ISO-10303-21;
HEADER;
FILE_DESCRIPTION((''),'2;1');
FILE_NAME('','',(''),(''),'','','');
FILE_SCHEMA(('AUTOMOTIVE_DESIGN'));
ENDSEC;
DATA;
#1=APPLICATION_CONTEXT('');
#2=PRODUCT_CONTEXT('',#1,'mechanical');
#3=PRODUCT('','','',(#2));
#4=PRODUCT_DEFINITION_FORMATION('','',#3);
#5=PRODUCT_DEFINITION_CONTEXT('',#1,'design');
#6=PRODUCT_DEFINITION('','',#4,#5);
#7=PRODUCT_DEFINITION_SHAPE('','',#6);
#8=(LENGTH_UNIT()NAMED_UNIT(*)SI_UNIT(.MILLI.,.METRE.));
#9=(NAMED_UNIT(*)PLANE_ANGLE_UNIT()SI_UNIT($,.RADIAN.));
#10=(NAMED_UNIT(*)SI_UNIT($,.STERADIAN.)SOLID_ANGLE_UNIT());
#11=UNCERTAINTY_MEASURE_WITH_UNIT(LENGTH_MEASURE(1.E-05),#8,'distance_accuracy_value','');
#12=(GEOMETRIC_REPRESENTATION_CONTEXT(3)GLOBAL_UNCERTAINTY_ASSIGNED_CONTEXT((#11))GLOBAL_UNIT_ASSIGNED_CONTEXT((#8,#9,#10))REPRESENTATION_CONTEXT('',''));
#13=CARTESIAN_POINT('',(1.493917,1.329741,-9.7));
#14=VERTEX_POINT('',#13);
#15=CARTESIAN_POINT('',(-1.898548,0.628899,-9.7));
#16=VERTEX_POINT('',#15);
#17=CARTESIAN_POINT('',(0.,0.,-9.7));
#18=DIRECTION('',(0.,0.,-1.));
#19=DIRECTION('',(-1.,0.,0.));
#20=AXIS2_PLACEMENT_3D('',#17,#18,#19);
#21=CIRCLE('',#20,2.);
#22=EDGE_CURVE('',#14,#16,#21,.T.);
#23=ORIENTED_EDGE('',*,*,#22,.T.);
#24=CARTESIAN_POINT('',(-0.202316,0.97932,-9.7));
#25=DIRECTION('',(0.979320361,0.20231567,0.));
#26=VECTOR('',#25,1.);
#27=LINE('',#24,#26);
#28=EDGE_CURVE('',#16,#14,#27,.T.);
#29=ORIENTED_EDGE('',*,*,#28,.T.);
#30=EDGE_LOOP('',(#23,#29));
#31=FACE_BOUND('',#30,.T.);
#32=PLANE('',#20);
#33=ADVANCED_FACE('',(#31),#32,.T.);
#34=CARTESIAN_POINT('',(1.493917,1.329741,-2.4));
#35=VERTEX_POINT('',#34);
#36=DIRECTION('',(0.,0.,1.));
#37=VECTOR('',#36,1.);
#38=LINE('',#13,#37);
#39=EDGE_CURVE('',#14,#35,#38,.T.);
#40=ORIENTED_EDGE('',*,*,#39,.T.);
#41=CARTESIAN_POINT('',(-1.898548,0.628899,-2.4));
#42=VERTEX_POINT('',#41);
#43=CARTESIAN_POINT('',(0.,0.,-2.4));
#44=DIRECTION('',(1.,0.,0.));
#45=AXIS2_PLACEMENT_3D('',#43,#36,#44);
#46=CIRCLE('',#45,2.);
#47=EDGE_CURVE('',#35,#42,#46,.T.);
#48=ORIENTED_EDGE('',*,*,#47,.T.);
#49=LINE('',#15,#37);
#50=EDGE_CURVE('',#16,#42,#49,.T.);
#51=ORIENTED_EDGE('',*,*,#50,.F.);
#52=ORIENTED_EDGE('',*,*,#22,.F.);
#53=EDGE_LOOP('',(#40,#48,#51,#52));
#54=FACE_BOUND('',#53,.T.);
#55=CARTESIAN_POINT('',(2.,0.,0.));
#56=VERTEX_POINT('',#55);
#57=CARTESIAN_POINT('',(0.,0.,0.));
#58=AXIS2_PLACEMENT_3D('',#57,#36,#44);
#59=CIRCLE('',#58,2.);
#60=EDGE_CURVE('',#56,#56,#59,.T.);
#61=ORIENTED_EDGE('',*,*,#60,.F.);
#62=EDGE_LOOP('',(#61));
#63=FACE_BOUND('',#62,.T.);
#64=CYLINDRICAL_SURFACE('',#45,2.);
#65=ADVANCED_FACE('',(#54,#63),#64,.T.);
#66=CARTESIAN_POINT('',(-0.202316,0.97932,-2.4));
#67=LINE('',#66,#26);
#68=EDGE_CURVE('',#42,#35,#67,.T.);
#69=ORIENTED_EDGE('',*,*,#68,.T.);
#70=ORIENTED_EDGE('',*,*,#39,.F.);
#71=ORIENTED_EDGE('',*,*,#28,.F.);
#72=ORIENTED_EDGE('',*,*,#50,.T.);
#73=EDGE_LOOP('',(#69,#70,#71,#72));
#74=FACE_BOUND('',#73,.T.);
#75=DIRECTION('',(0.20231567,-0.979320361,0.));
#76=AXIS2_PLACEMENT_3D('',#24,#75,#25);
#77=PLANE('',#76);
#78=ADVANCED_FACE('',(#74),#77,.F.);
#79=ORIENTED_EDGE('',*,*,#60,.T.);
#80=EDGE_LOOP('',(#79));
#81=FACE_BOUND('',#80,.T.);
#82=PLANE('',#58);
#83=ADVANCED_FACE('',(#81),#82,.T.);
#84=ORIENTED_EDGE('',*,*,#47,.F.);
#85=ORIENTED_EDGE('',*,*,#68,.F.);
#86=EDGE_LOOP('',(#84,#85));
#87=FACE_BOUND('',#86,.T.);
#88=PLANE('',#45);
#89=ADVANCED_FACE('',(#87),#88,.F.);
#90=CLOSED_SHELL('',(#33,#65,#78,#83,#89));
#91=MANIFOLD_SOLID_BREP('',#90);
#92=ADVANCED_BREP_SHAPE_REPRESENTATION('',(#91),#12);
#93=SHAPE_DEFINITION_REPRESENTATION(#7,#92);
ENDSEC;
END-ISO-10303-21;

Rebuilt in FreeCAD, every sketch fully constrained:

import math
import FreeCAD as App
import Part
import Sketcher

V = App.Vector

doc = App.newDocument("Part")
body = doc.addObject("PartDesign::Body", "Body")

sketch1 = body.newObject("Sketcher::SketchObject", "Sketch")
sketch1.AttachmentSupport = (doc.getObject("XY_Plane"), [""])
sketch1.MapMode = "FlatFace"
sketch1.addGeometry(Part.Circle(V(0, 0, 0), V(0, 0, 1), 2), False)
sketch1.addConstraint([
    Sketcher.Constraint("Coincident", 0, 3, -1, 1),
    Sketcher.Constraint("Diameter", 0, 4.0),
])
pad1 = body.newObject("PartDesign::Pad", "Pad")
pad1.Profile = sketch1
pad1.Length = 2.4
pad1.Reversed = True

sketch2 = body.newObject("Sketcher::SketchObject", "Sketch001")
sketch2.AttachmentSupport = (doc.getObject("XY_Plane"), [""])
sketch2.MapMode = "FlatFace"
sketch2.AttachmentOffset = App.Placement(V(0, 0, -2.4), App.Rotation())
sketch2.addGeometry([
    Part.ArcOfCircle(Part.Circle(V(0, 0, 0), V(0, 0, 1), 2), math.radians(161.67), math.radians(180)),
    Part.LineSegment(V(-1.9, 0.6, 0), V(1.5, 1.3, 0)),
    Part.ArcOfCircle(Part.Circle(V(0, 0, 0), V(0, 0, 1), 2), math.radians(180), math.radians(402)),
], False)
sketch2.addConstraint([
    Sketcher.Constraint("Coincident", 0, 1, 1, 1),
    Sketcher.Constraint("Coincident", 1, 2, 2, 2),
    Sketcher.Constraint("Tangent", 2, 1, 0, 2),
    Sketcher.Constraint("Coincident", 0, 3, -1, 1),
    Sketcher.Constraint("Equal", 0, 2),
    Sketcher.Constraint("PointOnObject", 2, 1, -1),
    Sketcher.Constraint("Radius", 0, 2.0),
    Sketcher.Constraint("Distance", 1, 3.464102),
    Sketcher.Constraint("DistanceY", -1, 1, 0, 1, 0.628899),
])
pad2 = body.newObject("PartDesign::Pad", "Pad001")
pad2.Profile = sketch2
pad2.Length = 7.3
pad2.Reversed = True

doc.recompute()
